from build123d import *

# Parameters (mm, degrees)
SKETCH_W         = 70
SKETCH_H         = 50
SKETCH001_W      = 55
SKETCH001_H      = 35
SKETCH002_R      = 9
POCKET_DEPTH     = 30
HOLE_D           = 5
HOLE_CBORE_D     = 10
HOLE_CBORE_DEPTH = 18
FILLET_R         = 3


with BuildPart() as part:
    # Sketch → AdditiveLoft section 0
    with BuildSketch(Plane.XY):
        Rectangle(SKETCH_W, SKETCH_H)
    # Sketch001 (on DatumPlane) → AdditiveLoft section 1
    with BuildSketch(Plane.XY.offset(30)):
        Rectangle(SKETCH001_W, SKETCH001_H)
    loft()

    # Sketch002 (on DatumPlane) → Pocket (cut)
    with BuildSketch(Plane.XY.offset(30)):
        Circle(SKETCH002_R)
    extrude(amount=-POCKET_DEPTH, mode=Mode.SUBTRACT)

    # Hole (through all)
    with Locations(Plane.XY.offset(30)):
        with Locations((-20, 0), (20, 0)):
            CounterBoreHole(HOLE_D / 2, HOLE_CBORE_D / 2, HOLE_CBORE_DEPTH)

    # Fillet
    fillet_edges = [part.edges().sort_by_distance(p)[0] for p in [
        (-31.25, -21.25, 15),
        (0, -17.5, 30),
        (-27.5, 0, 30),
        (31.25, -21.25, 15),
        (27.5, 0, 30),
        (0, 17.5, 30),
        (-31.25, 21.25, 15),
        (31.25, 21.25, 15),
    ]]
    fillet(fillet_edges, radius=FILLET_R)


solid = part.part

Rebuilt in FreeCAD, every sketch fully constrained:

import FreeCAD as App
import Part
import Sketcher

V = App.Vector
Q = App.Units.Quantity


def edges_at(feature, points):
    """Names of the edges that pass closest to the given points."""
    edges = feature.Shape.Edges
    near = lambda p: min(range(len(edges)), key=lambda i: edges[i].distToShape(Part.Vertex(*p))[0])
    return sorted({f"Edge{near(p) + 1}" for p in points})


def add_polygon(sketch, points):
    """Adds a closed chain of lines whose ends are joined by coincident constraints."""
    first, n = sketch.GeometryCount, len(points)
    for a, b in zip(points, points[1:] + points[:1]):
        sketch.addGeometry(Part.LineSegment(App.Vector(*a, 0), App.Vector(*b, 0)), False)
    for i in range(n):
        sketch.addConstraint(Sketcher.Constraint("Coincident", first + i, 2, first + (i + 1) % n, 1))

doc = App.newDocument("Part")
body = doc.addObject("PartDesign::Body", "Body")

# Sketch on XY plane
sketch1 = body.newObject("Sketcher::SketchObject", "Sketch")
sketch1.AttachmentSupport = (doc.getObject("XY_Plane"), [""])
sketch1.MapMode = "FlatFace"
add_polygon(sketch1, [(-35, 25), (-35, -25), (35, -25), (35, 25)])  # lines 0-3
sketch1.addConstraint([
    Sketcher.Constraint("Vertical", 0),
    Sketcher.Constraint("Horizontal", 1),
    Sketcher.Constraint("Vertical", 2),
    Sketcher.Constraint("Horizontal", 3),
    Sketcher.Constraint("Symmetric", 0, 2, 2, 2, -1, 1),
    Sketcher.Constraint("DistanceX", 1, 1, 1, 2, Q("70 mm")),
    Sketcher.Constraint("DistanceY", 0, 2, 0, 1, Q("50 mm")),
])

# Sketch on XY plane
sketch2 = body.newObject("Sketcher::SketchObject", "Sketch001")
sketch2.AttachmentSupport = (doc.getObject("XY_Plane"), [""])
sketch2.MapMode = "FlatFace"
sketch2.AttachmentOffset = App.Placement(V(0, 0, 30), App.Rotation())
add_polygon(sketch2, [(-28, 18), (-28, -18), (28, -18), (28, 18)])  # lines 0-3
sketch2.addConstraint([
    Sketcher.Constraint("Vertical", 0),
    Sketcher.Constraint("Horizontal", 1),
    Sketcher.Constraint("Vertical", 2),
    Sketcher.Constraint("Horizontal", 3),
    Sketcher.Constraint("Symmetric", 0, 2, 2, 2, -1, 1),
    Sketcher.Constraint("DistanceX", 1, 1, 1, 2, Q("55 mm")),
    Sketcher.Constraint("DistanceY", 0, 2, 0, 1, Q("35 mm")),
])

additiveloft = body.newObject("PartDesign::AdditiveLoft", "AdditiveLoft")
additiveloft.Profile = sketch1
additiveloft.Sections = [sketch2]

# Sketch on XY plane
sketch3 = body.newObject("Sketcher::SketchObject", "Sketch002")
sketch3.AttachmentSupport = (doc.getObject("XY_Plane"), [""])
sketch3.MapMode = "FlatFace"
sketch3.AttachmentOffset = App.Placement(V(0, 0, 30), App.Rotation())
sketch3.addGeometry(Part.Circle(V(0, 0, 0), V(0, 0, 1), 9), False)
sketch3.addConstraint([
    Sketcher.Constraint("Coincident", 0, 3, -1, 1),
    Sketcher.Constraint("Diameter", 0, Q("18 mm")),
])
pocket1 = body.newObject("PartDesign::Pocket", "Pocket")
pocket1.Profile = sketch3
pocket1.Length = 30

# Sketch on XY plane
sketch4 = body.newObject("Sketcher::SketchObject", "Sketch003")
sketch4.AttachmentSupport = (doc.getObject("XY_Plane"), [""])
sketch4.MapMode = "FlatFace"
sketch4.AttachmentOffset = App.Placement(V(0, 0, 30), App.Rotation())
sketch4.addGeometry([
    Part.Circle(V(-20, 0, 0), V(0, 0, 1), 2.5),
    Part.Circle(V(20, 0, 0), V(0, 0, 1), 2.5),
], False)
sketch4.addConstraint([
    Sketcher.Constraint("Equal", 0, 1),
    Sketcher.Constraint("Symmetric", 0, 3, 1, 3, -1, 1),
    Sketcher.Constraint("PointOnObject", 0, 3, -1),
    Sketcher.Constraint("Diameter", 0, Q("5 mm")),
    Sketcher.Constraint("DistanceX", 0, 3, -1, 1, Q("20 mm")),
])
doc.recompute()
hole = body.newObject("PartDesign::Hole", "Hole")
hole.Profile = sketch4
hole.ThreadType = "None"
hole.Diameter = 5
hole.DepthType = "ThroughAll"
hole.HoleCutType = "Counterbore"
hole.HoleCutDiameter = 10
hole.HoleCutDepth = 18
doc.recompute()

fillet = body.newObject("PartDesign::Fillet", "Fillet")
fillet.Base = (hole, edges_at(hole, [
    (-31.25, -21.25, 15),
    (0, -17.5, 30),
    (-27.5, 0, 30),
    (31.25, -21.25, 15),
    (27.5, 0, 30),
    (0, 17.5, 30),
    (-31.25, 21.25, 15),
    (31.25, 21.25, 15),
]))
fillet.Radius = 3

doc.recompute()
